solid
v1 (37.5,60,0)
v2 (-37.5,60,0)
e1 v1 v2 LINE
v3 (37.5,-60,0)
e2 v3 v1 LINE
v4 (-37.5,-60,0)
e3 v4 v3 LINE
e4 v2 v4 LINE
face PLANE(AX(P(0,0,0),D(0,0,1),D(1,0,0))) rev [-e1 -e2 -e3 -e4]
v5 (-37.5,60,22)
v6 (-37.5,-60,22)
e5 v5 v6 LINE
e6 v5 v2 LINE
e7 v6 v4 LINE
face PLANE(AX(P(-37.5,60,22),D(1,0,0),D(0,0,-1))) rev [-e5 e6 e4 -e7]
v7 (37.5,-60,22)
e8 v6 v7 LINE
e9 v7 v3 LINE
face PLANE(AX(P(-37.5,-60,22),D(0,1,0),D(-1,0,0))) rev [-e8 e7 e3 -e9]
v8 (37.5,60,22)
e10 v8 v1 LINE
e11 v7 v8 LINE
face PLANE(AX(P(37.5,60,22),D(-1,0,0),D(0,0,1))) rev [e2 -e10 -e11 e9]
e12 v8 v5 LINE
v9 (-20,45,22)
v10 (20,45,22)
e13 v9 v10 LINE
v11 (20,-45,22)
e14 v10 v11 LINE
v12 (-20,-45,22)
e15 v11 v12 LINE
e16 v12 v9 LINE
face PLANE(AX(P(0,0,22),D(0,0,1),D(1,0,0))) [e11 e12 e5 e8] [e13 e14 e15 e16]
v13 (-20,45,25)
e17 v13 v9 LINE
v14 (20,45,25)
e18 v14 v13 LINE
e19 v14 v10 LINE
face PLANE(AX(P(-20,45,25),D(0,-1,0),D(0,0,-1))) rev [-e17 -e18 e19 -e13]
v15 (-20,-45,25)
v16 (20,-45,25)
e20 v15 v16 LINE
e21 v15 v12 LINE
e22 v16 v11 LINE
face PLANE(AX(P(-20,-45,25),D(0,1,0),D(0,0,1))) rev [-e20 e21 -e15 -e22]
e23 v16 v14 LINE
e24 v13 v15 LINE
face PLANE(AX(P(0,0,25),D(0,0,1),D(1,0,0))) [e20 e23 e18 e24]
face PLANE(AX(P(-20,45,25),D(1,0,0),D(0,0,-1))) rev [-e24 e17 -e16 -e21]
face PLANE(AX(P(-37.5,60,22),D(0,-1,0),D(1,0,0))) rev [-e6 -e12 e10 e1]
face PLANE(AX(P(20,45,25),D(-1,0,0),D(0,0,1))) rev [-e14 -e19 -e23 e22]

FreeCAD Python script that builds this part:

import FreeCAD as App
import Part
import Sketcher


def add_polygon(sketch, points):
    """Adds a closed chain of lines whose ends are joined by coincident constraints."""
    first, n = sketch.GeometryCount, len(points)
    for a, b in zip(points, points[1:] + points[:1]):
        sketch.addGeometry(Part.LineSegment(App.Vector(*a, 0), App.Vector(*b, 0)), False)
    for i in range(n):
        sketch.addConstraint(Sketcher.Constraint("Coincident", first + i, 2, first + (i + 1) % n, 1))

doc = App.newDocument("Part")
body = doc.addObject("PartDesign::Body", "Body")

sketch1 = body.newObject("Sketcher::SketchObject", "Sketch")
sketch1.AttachmentSupport = (doc.getObject("XY_Plane"), [""])
sketch1.MapMode = "FlatFace"
add_polygon(sketch1, [(-38, 60), (-38, -60), (38, -60), (38, 60)])
sketch1.addConstraint([
    Sketcher.Constraint("Vertical", 0),
    Sketcher.Constraint("Horizontal", 1),
    Sketcher.Constraint("Vertical", 2),
    Sketcher.Constraint("Horizontal", 3),
    Sketcher.Constraint("Symmetric", 0, 2, 2, 2, -1, 1),
    Sketcher.Constraint("DistanceX", 1, 1, 1, 2, 75.0),
    Sketcher.Constraint("DistanceY", 0, 2, 0, 1, 120.0),
])
pad1 = body.newObject("PartDesign::Pad", "Pad")
pad1.Profile = sketch1
pad1.Length = 22

sketch2 = body.newObject("Sketcher::SketchObject", "Sketch001")
sketch2.AttachmentSupport = (doc.getObject("XY_Plane"), [""])
sketch2.MapMode = "FlatFace"
add_polygon(sketch2, [(-20, 45), (-20, -45), (20, -45), (20, 45)])
sketch2.addConstraint([
    Sketcher.Constraint("Vertical", 0),
    Sketcher.Constraint("Horizontal", 1),
    Sketcher.Constraint("Vertical", 2),
    Sketcher.Constraint("Horizontal", 3),
    Sketcher.Constraint("Symmetric", 0, 2, 2, 2, -1, 1),
    Sketcher.Constraint("DistanceX", 1, 1, 1, 2, 40.0),
    Sketcher.Constraint("DistanceY", 0, 2, 0, 1, 90.0),
])
pad2 = body.newObject("PartDesign::Pad", "Pad001")
pad2.Profile = sketch2
pad2.Length = 25

doc.recompute()
